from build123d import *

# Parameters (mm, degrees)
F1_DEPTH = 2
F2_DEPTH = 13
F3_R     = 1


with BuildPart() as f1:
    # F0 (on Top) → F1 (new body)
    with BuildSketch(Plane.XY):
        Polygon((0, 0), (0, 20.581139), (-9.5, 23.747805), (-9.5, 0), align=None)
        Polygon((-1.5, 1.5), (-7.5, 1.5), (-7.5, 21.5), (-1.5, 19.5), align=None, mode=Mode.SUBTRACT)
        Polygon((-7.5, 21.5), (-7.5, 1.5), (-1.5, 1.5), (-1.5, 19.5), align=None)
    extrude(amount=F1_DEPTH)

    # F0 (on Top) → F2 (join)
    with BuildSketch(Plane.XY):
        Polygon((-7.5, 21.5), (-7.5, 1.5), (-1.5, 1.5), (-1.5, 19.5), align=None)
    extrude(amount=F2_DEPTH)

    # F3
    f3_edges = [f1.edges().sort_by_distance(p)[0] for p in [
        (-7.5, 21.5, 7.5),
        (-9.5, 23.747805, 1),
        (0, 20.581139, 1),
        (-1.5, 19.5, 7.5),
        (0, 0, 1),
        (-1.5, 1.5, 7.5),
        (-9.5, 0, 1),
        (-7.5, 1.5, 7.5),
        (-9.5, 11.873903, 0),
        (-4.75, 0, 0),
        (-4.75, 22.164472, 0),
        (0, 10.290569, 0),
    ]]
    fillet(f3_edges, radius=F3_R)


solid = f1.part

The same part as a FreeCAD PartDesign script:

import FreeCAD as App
import Part
import Sketcher
from FreeCAD import Vector
Q = App.Units.Quantity


def edges_at(feature, points):
    """Names of the edges that pass closest to the given points."""
    edges = feature.Shape.Edges
    near = lambda p: min(range(len(edges)), key=lambda i: edges[i].distToShape(Part.Vertex(*p))[0])
    return sorted({f"Edge{near(p) + 1}" for p in points})


def add_polygon(sketch, points):
    """Adds a closed chain of lines whose ends are joined by coincident constraints."""
    first, n = sketch.GeometryCount, len(points)
    for a, b in zip(points, points[1:] + points[:1]):
        sketch.addGeometry(Part.LineSegment(App.Vector(*a, 0), App.Vector(*b, 0)), False)
    for i in range(n):
        sketch.addConstraint(Sketcher.Constraint("Coincident", first + i, 2, first + (i + 1) % n, 1))

doc = App.newDocument("Part")
body = doc.addObject("PartDesign::Body", "Body")

# Sketch on XY plane
sketch1 = body.newObject("Sketcher::SketchObject", "Sketch")
sketch1.AttachmentSupport = (doc.getObject("XY_Plane"), [""])
sketch1.MapMode = "FlatFace"
add_polygon(sketch1, [(0, 0), (0, 21), (-10, 24), (-10, 0)])  # lines 0-3
sketch1.addConstraint([
    Sketcher.Constraint("Vertical", 0),
    Sketcher.Constraint("Vertical", 2),
    Sketcher.Constraint("Horizontal", 3),
    Sketcher.Constraint("Coincident", 3, 2, -1, 1),
    Sketcher.Constraint("DistanceX", 3, 1, 3, 2, Q("9.5 mm")),
    Sketcher.Constraint("DistanceY", 0, 1, 0, 2, Q("20.581139 mm")),
    Sketcher.Constraint("Distance", 1, Q("10.013879 mm")),
])
pad1 = body.newObject("PartDesign::Pad", "Pad")
pad1.Profile = sketch1
pad1.Length = 2

# Sketch on XY plane
sketch2 = body.newObject("Sketcher::SketchObject", "Sketch001")
sketch2.AttachmentSupport = (doc.getObject("XY_Plane"), [""])
sketch2.MapMode = "FlatFace"
add_polygon(sketch2, [(-8, 22), (-8, 2), (-2, 2), (-2, 20)])  # lines 0-3
sketch2.addConstraint([
    Sketcher.Constraint("Vertical", 0),
    Sketcher.Constraint("Horizontal", 1),
    Sketcher.Constraint("Vertical", 2),
    Sketcher.Constraint("DistanceX", 1, 1, 1, 2, Q("6 mm")),
    Sketcher.Constraint("DistanceY", 0, 2, 0, 1, Q("20 mm")),
    Sketcher.Constraint("DistanceY", 2, 1, 2, 2, Q("18 mm")),
    Sketcher.Constraint("DistanceX", 0, 2, -1, 1, Q("7.5 mm")),
    Sketcher.Constraint("DistanceY", -1, 1, 0, 2, Q("1.5 mm")),
])
pad2 = body.newObject("PartDesign::Pad", "Pad001")
pad2.Profile = sketch2
pad2.Length = 13
doc.recompute()

fillet = body.newObject("PartDesign::Fillet", "Fillet")
fillet.Base = (pad2, edges_at(pad2, [
    (-7.5, 21.5, 7.5),
    (-9.5, 23.748, 1),
    (0, 20.581, 1),
    (-1.5, 19.5, 7.5),
    (0, 0, 1),
    (-1.5, 1.5, 7.5),
    (-9.5, 0, 1),
    (-7.5, 1.5, 7.5),
    (-9.5, 11.874, 0),
    (-4.75, 0, 0),
    (-4.75, 22.164, 0),
    (0, 10.291, 0),
]))
fillet.Radius = 1

doc.recompute()
